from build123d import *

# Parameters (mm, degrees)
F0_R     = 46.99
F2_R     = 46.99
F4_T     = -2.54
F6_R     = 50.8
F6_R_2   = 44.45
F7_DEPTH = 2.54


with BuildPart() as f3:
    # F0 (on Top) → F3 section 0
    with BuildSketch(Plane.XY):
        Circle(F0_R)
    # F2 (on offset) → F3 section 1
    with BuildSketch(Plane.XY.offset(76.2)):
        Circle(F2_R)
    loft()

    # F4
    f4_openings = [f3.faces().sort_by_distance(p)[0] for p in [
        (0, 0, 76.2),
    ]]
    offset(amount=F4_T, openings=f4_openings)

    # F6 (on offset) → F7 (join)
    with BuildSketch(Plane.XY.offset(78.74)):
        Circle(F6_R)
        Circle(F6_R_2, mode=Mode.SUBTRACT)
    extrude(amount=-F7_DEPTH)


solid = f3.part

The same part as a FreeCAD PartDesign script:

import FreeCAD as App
import Part
import Sketcher

V = App.Vector
Q = App.Units.Quantity


def faces_at(feature, points):
    """Names of the faces that lie closest to the given points."""
    faces = feature.Shape.Faces
    near = lambda p: min(range(len(faces)), key=lambda i: faces[i].distToShape(Part.Vertex(*p))[0])
    return sorted({f"Face{near(p) + 1}" for p in points})

doc = App.newDocument("Part")
params = doc.addObject("Spreadsheet::Sheet", "Params")
for row, (alias, value) in enumerate([
    ("sketch1_diameter", "3.7 in"),
    ("sketch2_diameter", "3.7 in"),
    ("thickness_wall", "0.1 in"),
    ("sketch3_diameter", "4 in"),
    ("sketch3_diameter2", "3.5 in"),
    ("pad1_length", "0.1 in"),
], start=1):
    params.set(f"A{row}", alias)
    params.set(f"B{row}", "=" + value)
    params.setAlias(f"B{row}", alias)

body = doc.addObject("PartDesign::Body", "Body")

sketch1 = doc.addObject("Sketcher::SketchObject", "Sketch")
body.addObject(sketch1)
sketch1.AttachmentSupport = (doc.XY_Plane, [""])
sketch1.MapMode = "FlatFace"
sketch1.addGeometry(Part.Circle(V(0, 0, 0), V(0, 0, 1), 47), False)
sketch1.addConstraint([
    Sketcher.Constraint("Coincident", 0, 3, -1, 1),
    Sketcher.Constraint("Diameter", 0, Q("3.7 in")),
])
sketch1.setExpression("Constraints[1]", "Params.sketch1_diameter")

sketch2 = doc.addObject("Sketcher::SketchObject", "Sketch001")
body.addObject(sketch2)
sketch2.AttachmentSupport = (doc.XY_Plane, [""])
sketch2.MapMode = "FlatFace"
sketch2.AttachmentOffset = App.Placement(V(0, 0, 3 * 25.4), App.Rotation())
sketch2.addGeometry(Part.Circle(V(0, 0, 0), V(0, 0, 1), 47), False)
sketch2.addConstraint([
    Sketcher.Constraint("Coincident", 0, 3, -1, 1),
    Sketcher.Constraint("Diameter", 0, Q("3.7 in")),
])
sketch2.setExpression("Constraints[1]", "Params.sketch2_diameter")

additiveloft = doc.addObject("PartDesign::AdditiveLoft", "AdditiveLoft")
body.addObject(additiveloft)
additiveloft.Profile = sketch1
additiveloft.Sections = [sketch2]
doc.recompute()

thickness = doc.addObject("PartDesign::Thickness", "Thickness")
body.addObject(thickness)
thickness.Base = (additiveloft, faces_at(additiveloft, [(0, 0, 76.2)]))
thickness.setExpression("Value", "Params.thickness_wall")
thickness.Reversed = True
thickness.Join = "Arc"

sketch3 = doc.addObject("Sketcher::SketchObject", "Sketch002")
body.addObject(sketch3)
sketch3.AttachmentSupport = (doc.XY_Plane, [""])
sketch3.MapMode = "FlatFace"
sketch3.AttachmentOffset = App.Placement(V(0, 0, 3.1 * 25.4), App.Rotation())
sketch3.addGeometry([
    Part.Circle(V(0, 0, 0), V(0, 0, 1), 51),
    Part.Circle(V(0, 0, 0), V(0, 0, 1), 44),
], False)
sketch3.addConstraint([
    Sketcher.Constraint("Coincident", 0, 3, -1, 1),
    Sketcher.Constraint("Coincident", 1, 3, -1, 1),
    Sketcher.Constraint("Diameter", 0, Q("4 in")),
    Sketcher.Constraint("Diameter", 1, Q("3.5 in")),
])
sketch3.setExpression("Constraints[2]", "Params.sketch3_diameter")
sketch3.setExpression("Constraints[3]", "Params.sketch3_diameter2")
pad1 = doc.addObject("PartDesign::Pad", "Pad")
body.addObject(pad1)
pad1.Profile = sketch3
pad1.setExpression("Length", "Params.pad1_length")
pad1.Reversed = True

doc.recompute()
